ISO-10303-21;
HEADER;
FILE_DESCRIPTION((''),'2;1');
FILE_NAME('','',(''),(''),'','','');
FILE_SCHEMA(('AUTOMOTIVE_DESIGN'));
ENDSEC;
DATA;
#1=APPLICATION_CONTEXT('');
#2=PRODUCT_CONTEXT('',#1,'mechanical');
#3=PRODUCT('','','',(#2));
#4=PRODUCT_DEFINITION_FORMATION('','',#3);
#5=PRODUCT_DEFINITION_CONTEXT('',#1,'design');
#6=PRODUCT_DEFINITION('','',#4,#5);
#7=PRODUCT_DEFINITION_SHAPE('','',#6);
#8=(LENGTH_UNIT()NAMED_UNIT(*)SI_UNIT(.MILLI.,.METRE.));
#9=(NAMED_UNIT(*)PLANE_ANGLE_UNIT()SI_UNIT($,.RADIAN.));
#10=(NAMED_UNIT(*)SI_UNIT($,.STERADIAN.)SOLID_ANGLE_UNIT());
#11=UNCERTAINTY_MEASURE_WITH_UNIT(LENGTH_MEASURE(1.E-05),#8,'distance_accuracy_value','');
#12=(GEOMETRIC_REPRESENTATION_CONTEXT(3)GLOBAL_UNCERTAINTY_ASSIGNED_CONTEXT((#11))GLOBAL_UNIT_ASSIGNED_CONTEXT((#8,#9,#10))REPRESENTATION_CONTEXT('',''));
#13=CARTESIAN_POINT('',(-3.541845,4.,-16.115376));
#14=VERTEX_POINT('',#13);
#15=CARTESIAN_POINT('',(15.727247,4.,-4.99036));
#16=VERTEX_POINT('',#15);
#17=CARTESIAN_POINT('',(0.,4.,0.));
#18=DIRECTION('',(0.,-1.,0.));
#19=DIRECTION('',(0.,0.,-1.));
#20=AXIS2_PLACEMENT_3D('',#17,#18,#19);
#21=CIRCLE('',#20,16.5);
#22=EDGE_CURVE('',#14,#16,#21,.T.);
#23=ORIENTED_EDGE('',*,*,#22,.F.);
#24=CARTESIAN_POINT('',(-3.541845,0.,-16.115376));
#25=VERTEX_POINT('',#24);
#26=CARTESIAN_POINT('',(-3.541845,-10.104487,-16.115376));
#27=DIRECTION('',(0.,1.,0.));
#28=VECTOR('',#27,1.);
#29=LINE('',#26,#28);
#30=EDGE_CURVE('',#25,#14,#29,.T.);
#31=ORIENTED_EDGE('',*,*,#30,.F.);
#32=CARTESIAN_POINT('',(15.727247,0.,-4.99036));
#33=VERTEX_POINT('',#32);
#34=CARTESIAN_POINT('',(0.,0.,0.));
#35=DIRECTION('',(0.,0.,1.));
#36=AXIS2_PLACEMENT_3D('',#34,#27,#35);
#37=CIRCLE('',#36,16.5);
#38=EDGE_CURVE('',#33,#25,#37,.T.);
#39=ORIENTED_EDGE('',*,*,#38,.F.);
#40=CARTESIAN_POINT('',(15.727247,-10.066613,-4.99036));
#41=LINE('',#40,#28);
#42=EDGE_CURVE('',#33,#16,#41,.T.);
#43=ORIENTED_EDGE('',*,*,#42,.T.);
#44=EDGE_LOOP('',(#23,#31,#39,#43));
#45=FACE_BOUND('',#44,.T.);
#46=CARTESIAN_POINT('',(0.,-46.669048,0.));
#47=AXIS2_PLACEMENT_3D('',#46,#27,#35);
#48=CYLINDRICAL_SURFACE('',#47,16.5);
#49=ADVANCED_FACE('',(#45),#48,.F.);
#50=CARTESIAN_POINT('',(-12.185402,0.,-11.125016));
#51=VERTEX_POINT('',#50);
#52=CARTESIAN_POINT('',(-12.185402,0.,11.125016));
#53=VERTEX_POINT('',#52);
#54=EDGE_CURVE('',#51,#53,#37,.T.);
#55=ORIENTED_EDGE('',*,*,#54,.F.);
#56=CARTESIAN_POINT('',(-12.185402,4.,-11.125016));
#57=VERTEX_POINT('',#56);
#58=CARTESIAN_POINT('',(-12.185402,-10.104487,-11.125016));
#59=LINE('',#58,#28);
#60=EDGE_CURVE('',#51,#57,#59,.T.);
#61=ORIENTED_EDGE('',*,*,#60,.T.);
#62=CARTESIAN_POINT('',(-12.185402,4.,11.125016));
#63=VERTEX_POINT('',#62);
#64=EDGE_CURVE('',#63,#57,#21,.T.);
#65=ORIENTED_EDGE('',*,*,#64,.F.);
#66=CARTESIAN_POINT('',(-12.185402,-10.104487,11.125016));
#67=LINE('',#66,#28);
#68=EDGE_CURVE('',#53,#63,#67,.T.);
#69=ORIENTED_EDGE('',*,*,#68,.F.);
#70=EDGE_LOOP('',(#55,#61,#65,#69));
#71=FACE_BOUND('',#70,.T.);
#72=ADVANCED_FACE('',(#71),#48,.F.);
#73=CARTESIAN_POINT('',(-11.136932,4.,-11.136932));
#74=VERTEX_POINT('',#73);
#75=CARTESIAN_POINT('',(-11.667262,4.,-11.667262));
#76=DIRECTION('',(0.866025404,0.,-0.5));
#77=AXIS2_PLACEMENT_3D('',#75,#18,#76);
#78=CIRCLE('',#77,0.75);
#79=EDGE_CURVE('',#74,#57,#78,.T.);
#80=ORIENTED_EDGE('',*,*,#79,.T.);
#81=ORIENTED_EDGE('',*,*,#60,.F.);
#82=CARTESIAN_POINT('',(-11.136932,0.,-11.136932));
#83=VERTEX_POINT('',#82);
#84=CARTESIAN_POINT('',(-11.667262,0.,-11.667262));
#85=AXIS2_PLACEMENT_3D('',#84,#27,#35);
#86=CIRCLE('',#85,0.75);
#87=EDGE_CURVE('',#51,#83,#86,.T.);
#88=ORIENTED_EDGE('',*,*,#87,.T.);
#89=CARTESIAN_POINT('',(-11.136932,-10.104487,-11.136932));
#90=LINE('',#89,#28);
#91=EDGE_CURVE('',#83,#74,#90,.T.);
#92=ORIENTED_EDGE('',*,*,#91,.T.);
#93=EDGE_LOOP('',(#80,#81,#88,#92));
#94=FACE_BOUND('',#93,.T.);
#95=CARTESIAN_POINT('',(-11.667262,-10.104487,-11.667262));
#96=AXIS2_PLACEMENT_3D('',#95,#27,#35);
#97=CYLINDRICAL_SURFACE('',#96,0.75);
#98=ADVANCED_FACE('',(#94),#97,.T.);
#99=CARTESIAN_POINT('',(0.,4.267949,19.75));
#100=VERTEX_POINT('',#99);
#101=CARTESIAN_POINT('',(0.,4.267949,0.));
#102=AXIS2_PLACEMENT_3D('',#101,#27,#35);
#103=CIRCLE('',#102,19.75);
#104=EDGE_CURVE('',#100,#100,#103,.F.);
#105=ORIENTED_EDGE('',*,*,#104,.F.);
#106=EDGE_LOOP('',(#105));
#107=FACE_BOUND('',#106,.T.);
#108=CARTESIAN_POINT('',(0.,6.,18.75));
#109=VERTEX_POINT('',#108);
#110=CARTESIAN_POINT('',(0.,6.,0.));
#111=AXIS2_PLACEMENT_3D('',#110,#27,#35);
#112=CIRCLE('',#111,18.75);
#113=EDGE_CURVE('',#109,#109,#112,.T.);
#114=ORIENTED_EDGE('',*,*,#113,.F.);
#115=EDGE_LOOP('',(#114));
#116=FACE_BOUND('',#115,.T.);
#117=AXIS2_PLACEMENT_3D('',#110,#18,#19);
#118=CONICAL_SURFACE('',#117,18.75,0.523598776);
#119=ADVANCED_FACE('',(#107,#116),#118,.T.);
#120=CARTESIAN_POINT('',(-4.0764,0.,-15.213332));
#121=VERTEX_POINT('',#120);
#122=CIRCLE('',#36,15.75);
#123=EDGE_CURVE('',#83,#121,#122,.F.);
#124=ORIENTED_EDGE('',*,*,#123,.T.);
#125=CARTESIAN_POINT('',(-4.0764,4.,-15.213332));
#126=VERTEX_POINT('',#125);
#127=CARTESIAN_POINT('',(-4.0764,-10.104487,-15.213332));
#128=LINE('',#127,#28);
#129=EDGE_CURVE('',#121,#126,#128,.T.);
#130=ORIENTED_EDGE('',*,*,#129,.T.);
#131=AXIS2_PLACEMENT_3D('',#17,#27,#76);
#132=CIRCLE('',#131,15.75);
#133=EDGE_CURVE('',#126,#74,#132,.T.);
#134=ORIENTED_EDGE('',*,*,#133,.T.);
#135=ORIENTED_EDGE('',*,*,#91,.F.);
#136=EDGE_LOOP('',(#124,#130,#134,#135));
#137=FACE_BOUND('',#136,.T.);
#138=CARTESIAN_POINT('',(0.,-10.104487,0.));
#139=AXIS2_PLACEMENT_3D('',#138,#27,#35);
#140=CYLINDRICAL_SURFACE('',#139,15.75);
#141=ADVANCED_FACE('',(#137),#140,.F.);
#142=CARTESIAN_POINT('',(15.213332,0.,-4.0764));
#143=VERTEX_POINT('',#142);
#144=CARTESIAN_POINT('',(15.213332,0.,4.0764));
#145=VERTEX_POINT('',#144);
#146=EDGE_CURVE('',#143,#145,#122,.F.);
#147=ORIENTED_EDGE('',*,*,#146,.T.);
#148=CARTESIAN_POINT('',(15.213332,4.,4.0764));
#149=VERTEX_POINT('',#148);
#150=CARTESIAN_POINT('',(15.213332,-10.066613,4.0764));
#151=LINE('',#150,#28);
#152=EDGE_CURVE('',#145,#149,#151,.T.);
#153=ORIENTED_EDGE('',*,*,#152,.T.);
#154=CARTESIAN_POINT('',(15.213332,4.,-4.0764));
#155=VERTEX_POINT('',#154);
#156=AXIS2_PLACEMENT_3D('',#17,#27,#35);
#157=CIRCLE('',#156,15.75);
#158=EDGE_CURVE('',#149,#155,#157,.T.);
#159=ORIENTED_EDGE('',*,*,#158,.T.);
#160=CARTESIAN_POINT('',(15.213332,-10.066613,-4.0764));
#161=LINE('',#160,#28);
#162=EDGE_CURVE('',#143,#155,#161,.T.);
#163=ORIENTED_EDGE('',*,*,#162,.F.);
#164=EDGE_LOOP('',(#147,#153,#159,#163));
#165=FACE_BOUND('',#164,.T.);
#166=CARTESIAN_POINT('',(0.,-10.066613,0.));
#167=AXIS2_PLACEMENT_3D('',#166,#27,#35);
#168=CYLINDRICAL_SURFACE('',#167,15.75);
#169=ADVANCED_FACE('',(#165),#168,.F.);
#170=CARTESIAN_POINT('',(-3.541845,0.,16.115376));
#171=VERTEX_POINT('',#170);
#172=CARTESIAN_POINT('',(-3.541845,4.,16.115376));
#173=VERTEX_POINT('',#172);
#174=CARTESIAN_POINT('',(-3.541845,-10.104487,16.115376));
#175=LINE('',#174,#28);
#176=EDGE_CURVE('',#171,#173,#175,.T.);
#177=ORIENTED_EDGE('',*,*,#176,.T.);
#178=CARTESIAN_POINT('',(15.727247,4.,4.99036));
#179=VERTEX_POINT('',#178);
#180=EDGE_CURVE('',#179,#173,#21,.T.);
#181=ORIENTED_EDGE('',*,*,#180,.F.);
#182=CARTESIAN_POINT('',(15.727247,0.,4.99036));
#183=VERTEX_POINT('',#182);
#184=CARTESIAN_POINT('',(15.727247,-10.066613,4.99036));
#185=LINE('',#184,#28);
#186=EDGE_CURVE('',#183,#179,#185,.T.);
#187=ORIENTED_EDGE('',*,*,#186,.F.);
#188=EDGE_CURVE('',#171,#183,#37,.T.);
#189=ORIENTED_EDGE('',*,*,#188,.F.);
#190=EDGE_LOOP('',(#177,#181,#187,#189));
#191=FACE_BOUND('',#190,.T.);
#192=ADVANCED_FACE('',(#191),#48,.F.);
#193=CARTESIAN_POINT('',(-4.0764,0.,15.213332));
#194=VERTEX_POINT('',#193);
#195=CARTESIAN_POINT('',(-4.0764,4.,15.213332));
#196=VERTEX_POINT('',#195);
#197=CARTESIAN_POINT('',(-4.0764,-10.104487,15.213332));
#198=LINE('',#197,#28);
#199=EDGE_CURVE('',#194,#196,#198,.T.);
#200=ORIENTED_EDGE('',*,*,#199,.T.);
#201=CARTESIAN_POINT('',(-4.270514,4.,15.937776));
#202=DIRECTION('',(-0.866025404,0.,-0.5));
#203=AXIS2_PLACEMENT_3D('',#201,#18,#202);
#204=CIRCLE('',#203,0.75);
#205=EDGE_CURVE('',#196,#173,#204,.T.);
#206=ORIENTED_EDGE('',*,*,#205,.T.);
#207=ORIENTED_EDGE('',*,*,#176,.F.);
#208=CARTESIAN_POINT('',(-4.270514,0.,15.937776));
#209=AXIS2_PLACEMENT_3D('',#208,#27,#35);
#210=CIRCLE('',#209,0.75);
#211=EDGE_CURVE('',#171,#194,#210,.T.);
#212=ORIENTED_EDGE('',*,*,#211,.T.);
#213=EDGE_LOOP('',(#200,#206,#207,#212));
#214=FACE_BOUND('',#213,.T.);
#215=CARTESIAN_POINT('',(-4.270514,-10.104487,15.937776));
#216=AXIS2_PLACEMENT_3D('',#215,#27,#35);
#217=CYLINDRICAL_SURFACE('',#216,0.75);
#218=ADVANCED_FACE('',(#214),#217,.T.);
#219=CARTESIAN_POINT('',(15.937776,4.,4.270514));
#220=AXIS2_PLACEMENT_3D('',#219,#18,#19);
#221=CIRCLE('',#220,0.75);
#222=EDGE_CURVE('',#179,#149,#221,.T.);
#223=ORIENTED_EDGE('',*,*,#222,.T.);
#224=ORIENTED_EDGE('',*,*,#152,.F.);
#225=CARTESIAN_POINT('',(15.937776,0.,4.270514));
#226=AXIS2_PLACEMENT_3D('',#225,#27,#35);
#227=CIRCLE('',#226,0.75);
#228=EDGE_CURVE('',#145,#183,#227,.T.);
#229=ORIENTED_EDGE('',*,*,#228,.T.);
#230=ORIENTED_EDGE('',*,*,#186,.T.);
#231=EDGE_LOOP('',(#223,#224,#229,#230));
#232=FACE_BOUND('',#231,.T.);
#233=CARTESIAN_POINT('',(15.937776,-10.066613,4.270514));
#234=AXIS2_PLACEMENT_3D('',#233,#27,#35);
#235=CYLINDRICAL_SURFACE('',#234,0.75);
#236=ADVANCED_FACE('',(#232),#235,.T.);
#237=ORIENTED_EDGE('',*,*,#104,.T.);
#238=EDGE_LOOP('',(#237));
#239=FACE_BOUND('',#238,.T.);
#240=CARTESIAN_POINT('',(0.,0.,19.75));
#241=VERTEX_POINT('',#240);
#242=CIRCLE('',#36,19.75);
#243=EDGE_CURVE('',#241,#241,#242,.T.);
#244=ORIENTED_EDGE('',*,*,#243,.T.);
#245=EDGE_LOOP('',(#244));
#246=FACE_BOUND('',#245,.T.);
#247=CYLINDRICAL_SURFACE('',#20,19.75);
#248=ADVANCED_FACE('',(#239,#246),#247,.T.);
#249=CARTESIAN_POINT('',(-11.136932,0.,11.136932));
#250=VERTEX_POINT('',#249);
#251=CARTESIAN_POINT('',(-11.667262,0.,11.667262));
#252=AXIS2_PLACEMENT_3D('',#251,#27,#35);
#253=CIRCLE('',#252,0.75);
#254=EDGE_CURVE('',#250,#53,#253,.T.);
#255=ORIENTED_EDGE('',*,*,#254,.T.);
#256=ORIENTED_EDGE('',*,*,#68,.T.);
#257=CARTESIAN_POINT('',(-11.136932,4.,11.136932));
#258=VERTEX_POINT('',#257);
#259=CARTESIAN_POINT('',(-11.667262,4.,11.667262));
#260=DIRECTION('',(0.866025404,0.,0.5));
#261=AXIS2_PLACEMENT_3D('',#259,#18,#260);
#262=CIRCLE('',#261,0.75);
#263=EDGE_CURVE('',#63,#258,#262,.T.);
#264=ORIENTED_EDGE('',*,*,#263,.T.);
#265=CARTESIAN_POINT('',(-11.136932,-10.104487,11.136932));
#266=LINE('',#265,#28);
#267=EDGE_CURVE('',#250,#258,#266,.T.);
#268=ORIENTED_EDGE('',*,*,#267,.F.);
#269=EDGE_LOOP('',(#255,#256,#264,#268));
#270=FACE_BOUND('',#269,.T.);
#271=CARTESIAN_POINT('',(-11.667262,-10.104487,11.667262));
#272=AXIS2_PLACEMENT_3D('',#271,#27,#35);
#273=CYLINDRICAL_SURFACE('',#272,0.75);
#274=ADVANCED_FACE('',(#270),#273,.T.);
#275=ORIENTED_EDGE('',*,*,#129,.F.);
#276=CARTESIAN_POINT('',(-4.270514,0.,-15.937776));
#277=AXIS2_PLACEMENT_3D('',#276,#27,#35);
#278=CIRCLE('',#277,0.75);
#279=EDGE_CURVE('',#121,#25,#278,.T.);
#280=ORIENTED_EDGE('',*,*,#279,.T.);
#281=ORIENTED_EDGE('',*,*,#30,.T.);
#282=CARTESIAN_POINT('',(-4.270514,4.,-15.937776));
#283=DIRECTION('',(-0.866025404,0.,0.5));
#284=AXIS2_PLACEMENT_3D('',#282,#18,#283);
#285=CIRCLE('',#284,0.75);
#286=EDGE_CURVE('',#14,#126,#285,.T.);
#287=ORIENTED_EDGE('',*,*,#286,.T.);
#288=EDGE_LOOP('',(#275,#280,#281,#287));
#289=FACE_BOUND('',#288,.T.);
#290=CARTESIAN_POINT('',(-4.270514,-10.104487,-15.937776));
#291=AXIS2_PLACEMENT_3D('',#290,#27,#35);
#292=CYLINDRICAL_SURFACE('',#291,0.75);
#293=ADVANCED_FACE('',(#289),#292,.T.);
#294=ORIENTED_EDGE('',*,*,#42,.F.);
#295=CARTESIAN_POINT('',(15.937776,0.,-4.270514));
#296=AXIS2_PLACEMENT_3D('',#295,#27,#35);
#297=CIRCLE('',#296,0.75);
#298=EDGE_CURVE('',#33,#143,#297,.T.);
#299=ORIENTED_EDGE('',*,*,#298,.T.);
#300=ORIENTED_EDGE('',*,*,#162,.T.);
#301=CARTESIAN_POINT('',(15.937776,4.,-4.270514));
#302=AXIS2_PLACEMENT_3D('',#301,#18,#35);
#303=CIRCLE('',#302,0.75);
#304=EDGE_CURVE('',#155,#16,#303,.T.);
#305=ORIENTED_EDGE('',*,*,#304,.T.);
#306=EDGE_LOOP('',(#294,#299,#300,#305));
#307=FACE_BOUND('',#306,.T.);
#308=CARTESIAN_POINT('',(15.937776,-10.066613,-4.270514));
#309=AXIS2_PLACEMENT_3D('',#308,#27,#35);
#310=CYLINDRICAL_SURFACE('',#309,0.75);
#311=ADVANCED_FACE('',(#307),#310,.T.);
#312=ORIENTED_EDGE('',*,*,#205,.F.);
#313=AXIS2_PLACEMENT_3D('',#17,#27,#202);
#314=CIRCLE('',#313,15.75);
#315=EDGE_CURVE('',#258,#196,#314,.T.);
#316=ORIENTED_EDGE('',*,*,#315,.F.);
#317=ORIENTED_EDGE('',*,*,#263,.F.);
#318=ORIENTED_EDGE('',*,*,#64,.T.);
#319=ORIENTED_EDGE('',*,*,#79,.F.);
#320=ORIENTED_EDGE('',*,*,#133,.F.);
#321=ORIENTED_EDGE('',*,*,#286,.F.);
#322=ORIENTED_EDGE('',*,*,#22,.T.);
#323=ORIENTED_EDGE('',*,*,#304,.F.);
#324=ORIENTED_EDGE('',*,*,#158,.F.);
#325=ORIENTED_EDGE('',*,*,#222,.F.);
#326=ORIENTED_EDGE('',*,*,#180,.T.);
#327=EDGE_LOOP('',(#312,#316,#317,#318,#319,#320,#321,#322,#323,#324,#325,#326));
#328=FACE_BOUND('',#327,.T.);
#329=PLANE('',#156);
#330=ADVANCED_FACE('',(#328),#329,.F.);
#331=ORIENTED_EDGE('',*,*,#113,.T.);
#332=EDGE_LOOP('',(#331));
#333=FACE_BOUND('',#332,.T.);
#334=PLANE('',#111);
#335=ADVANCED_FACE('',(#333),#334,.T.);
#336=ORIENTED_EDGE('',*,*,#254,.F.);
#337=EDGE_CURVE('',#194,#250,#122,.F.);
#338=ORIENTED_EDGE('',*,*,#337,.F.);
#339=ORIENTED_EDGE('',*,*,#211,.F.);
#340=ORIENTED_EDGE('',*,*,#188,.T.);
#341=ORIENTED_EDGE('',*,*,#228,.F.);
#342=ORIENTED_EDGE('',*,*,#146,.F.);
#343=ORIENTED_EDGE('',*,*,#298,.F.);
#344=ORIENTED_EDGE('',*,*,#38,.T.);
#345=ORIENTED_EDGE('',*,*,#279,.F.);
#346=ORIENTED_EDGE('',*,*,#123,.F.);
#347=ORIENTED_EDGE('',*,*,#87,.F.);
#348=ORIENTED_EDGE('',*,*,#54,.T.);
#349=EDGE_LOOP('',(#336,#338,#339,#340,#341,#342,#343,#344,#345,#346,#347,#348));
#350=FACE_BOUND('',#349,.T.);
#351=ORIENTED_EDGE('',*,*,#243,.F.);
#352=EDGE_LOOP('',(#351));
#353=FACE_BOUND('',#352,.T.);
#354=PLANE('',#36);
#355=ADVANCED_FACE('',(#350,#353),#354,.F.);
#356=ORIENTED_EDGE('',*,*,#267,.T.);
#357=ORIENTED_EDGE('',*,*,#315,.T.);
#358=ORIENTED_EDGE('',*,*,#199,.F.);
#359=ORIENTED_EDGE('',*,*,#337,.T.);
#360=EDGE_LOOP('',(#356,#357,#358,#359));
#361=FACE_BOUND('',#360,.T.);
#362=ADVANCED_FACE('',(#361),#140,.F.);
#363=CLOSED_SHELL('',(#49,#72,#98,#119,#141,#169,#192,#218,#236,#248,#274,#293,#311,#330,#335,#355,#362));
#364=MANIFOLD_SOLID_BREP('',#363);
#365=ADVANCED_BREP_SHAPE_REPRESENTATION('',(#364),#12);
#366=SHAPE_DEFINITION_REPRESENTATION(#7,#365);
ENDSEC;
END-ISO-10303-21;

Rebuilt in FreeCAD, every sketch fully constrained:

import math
import FreeCAD as App
import Part
import Sketcher

V = App.Vector


def edges_at(feature, points):
    """Names of the edges that pass closest to the given points."""
    edges = feature.Shape.Edges
    near = lambda p: min(range(len(edges)), key=lambda i: edges[i].distToShape(Part.Vertex(*p))[0])
    return sorted({f"Edge{near(p) + 1}" for p in points})

doc = App.newDocument("Part")
body = doc.addObject("PartDesign::Body", "Body")

sketch1 = body.newObject("Sketcher::SketchObject", "Sketch")
sketch1.AttachmentSupport = (doc.getObject("XZ_Plane"), [""])
sketch1.MapMode = "FlatFace"
sketch1.addGeometry([
    Part.Circle(V(0, 0, 0), V(0, 0, 1), 20),
    Part.Circle(V(0, 0, 0), V(0, 0, 1), 16),
], False)
sketch1.addConstraint([
    Sketcher.Constraint("Coincident", 0, 3, -1, 1),
    Sketcher.Constraint("Coincident", 1, 3, -1, 1),
    Sketcher.Constraint("Diameter", 0, 39.5),
    Sketcher.Constraint("Diameter", 1, 31.5),
])
pad1 = body.newObject("PartDesign::Pad", "Pad")
pad1.Profile = sketch1
pad1.Length = 4
pad1.Reversed = True

sketch2 = body.newObject("Sketcher::SketchObject", "Sketch001")
sketch2.AttachmentSupport = (doc.getObject("XZ_Plane"), [""])
sketch2.MapMode = "FlatFace"
sketch2.AttachmentOffset = App.Placement(V(0, 0, -4), App.Rotation())
sketch2.addGeometry(Part.Circle(V(0, 0, 0), V(0, 0, 1), 20), False)
sketch2.addConstraint([
    Sketcher.Constraint("Coincident", 0, 3, -1, 1),
    Sketcher.Constraint("Diameter", 0, 39.5),
])
pad2 = body.newObject("PartDesign::Pad", "Pad001")
pad2.Profile = sketch2
pad2.Length = 2
pad2.Reversed = True

sketch3 = body.newObject("Sketcher::SketchObject", "Sketch002")
sketch3.AttachmentSupport = (doc.getObject("XZ_Plane"), [""])
sketch3.MapMode = "FlatFace"
sketch3.AttachmentOffset = App.Placement(V(0, 0, -4), App.Rotation())
sketch3.addGeometry(Part.Circle(V(0, 0, 0), V(0, 0, 1), 16), False)
sketch3.addConstraint([
    Sketcher.Constraint("Coincident", 0, 3, -1, 1),
    Sketcher.Constraint("Diameter", 0, 33.0),
])
pocket1 = body.newObject("PartDesign::Pocket", "Pocket")
pocket1.Profile = sketch3
pocket1.Length = 4
pocket1.Reversed = True

sketch4 = body.newObject("Sketcher::SketchObject", "Sketch003")
sketch4.AttachmentSupport = (doc.getObject("XZ_Plane"), [""])
sketch4.MapMode = "FlatFace"
sketch4.AttachmentOffset = App.Placement(V(0, 0, -4), App.Rotation())
sketch4.addGeometry([
    Part.ArcOfCircle(Part.Circle(V(15.9, -4.3, 0), V(0, 0, 1), 0.8), math.radians(165), math.radians(254)),
    Part.ArcOfCircle(Part.Circle(V(0, 0, 0), V(0, 0, 1), 16.5), math.radians(-18), math.radians(18)),
    Part.ArcOfCircle(Part.Circle(V(15.9, 4.3, 0), V(0, 0, 1), 0.8), math.radians(106), math.radians(195)),
    Part.ArcOfCircle(Part.Circle(V(0, 0, 0), V(0, 0, 1), 15.7), math.radians(-15), math.radians(15)),
], False)
sketch4.addConstraint([
    Sketcher.Constraint("Coincident", 0, 2, 1, 1),
    Sketcher.Constraint("Coincident", 1, 2, 2, 1),
    Sketcher.Constraint("Tangent", 2, 2, 3, 2),
    Sketcher.Constraint("Tangent", 3, 1, 0, 1),
    Sketcher.Constraint("Coincident", 1, 3, -1, 1),
    Sketcher.Constraint("Coincident", 3, 3, -1, 1),
    Sketcher.Constraint("Equal", 0, 2),
    Sketcher.Constraint("Vertical", 0, 3, 2, 3),
    Sketcher.Constraint("Radius", 1, 16.5),
    Sketcher.Constraint("Radius", 0, 0.75),
    Sketcher.Constraint("Radius", 3, 15.75),
    Sketcher.Constraint("DistanceY", -1, 1, 2, 2, 4.0764),
])
pad3 = body.newObject("PartDesign::Pad", "Pad002")
pad3.Profile = sketch4
pad3.Length = 4
doc.recompute()

polarpattern = body.newObject("PartDesign::PolarPattern", "PolarPattern")
polarpattern.Originals = [pad3]
polarpattern.Axis = (doc.getObject("Y_Axis"), [""])
polarpattern.Angle = 360
polarpattern.Occurrences = 3
body.Tip = polarpattern
doc.recompute()

chamfer = body.newObject("PartDesign::Chamfer", "Chamfer")
chamfer.Base = (polarpattern, edges_at(polarpattern, [(0, 6, -19.75)]))
chamfer.ChamferType = "Two distances"
chamfer.Size = 1
chamfer.Size2 = 1.732051
chamfer.FlipDirection = True

doc.recompute()
